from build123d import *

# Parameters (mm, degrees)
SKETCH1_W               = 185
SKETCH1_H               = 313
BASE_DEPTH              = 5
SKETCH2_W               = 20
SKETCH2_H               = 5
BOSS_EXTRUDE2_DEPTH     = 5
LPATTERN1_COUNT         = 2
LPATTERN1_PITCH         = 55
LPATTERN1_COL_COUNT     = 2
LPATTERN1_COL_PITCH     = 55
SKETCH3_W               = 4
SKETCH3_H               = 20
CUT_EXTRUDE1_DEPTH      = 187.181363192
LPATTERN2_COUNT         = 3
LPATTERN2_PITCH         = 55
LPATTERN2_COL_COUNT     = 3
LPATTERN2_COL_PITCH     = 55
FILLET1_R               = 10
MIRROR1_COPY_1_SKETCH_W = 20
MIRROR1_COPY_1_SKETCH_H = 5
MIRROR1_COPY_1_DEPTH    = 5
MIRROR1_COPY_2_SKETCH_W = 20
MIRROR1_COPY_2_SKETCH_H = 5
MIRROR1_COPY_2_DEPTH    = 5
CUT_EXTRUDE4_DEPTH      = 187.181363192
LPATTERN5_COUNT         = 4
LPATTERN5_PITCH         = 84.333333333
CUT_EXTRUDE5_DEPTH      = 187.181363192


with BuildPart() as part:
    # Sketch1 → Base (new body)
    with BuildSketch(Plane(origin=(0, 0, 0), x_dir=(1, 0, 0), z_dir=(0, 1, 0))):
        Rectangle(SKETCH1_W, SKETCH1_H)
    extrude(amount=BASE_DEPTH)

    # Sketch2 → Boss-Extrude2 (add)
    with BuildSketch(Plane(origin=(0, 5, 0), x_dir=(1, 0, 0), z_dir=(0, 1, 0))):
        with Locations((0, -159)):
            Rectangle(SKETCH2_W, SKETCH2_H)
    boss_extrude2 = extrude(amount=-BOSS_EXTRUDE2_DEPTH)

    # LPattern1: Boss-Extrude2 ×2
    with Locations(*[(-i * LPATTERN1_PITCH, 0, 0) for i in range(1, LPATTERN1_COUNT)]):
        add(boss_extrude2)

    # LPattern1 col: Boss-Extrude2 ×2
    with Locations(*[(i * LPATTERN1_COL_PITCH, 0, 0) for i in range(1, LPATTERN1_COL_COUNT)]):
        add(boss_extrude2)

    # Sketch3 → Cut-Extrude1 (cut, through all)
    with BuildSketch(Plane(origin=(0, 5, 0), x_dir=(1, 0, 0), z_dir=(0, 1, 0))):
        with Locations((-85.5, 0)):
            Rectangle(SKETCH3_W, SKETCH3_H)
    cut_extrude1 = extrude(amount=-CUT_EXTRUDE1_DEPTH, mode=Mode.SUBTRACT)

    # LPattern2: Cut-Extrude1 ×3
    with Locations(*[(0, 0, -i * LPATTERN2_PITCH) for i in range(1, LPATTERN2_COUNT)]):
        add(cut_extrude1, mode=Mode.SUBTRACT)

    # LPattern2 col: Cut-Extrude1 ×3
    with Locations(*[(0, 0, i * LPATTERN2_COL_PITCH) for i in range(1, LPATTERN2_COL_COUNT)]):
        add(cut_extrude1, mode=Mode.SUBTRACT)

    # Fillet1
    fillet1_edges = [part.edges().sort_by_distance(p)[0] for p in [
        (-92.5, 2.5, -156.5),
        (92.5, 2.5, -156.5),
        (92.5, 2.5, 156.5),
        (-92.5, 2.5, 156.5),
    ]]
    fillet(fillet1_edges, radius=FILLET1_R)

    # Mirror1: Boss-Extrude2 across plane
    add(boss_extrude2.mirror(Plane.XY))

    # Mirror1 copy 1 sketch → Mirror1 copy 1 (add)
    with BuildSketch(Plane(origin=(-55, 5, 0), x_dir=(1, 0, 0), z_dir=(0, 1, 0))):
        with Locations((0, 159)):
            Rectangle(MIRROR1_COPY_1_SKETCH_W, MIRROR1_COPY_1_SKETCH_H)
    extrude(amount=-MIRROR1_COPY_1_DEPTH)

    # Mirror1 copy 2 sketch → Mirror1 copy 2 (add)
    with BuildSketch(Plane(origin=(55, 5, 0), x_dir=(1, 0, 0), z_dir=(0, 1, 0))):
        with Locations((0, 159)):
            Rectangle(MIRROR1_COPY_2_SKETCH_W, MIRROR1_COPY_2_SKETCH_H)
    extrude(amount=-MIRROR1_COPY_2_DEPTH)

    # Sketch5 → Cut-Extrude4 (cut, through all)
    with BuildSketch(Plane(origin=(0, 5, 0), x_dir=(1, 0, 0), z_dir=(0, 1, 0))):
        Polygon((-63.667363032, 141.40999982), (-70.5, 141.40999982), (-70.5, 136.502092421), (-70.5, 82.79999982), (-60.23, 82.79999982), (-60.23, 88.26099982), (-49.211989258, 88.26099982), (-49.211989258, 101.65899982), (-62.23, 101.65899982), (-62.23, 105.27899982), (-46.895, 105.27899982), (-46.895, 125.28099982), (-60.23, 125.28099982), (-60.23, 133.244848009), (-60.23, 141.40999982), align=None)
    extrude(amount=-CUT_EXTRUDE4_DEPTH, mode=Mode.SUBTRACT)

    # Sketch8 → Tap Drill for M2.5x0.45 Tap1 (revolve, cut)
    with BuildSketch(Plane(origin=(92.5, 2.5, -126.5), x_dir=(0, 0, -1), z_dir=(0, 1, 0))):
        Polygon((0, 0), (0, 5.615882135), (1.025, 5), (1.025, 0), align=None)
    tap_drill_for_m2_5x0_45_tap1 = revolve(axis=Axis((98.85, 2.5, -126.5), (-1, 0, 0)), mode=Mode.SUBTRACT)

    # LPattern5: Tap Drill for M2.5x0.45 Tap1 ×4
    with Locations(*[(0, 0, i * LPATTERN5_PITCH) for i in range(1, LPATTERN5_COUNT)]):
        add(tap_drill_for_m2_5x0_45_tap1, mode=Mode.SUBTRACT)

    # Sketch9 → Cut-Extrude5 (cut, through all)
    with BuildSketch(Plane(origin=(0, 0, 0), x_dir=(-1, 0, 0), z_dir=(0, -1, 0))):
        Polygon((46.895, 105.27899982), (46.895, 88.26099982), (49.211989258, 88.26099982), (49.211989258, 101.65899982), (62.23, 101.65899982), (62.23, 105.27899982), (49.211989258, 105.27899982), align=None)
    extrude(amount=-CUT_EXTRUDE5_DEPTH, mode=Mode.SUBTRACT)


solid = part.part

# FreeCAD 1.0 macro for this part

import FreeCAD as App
import Part
import Sketcher
from FreeCAD import Vector
Q = App.Units.Quantity


def edges_at(feature, points):
    """Names of the edges that pass closest to the given points."""
    edges = feature.Shape.Edges
    near = lambda p: min(range(len(edges)), key=lambda i: edges[i].distToShape(Part.Vertex(*p))[0])
    return sorted({f"Edge{near(p) + 1}" for p in points})


def add_polygon(sketch, points):
    """Adds a closed chain of lines whose ends are joined by coincident constraints."""
    first, n = sketch.GeometryCount, len(points)
    for a, b in zip(points, points[1:] + points[:1]):
        sketch.addGeometry(Part.LineSegment(App.Vector(*a, 0), App.Vector(*b, 0)), False)
    for i in range(n):
        sketch.addConstraint(Sketcher.Constraint("Coincident", first + i, 2, first + (i + 1) % n, 1))

doc = App.newDocument("Part")
body = doc.addObject("PartDesign::Body", "Body")

# Sketch on XZ plane
sketch1 = doc.addObject("Sketcher::SketchObject", "Sketch")
body.addObject(sketch1)
sketch1.AttachmentSupport = (doc.XZ_Plane, [""])
sketch1.MapMode = "FlatFace"
add_polygon(sketch1, [(-92, -156), (-92, 156), (92, 156), (92, -156)])  # lines 0-3
sketch1.addConstraint(Sketcher.Constraint("Vertical", 0))
sketch1.addConstraint(Sketcher.Constraint("Horizontal", 1))
sketch1.addConstraint(Sketcher.Constraint("Vertical", 2))
sketch1.addConstraint(Sketcher.Constraint("Horizontal", 3))
sketch1.addConstraint(Sketcher.Constraint("Symmetric", 0, 2, 2, 2, -1, 1))
sketch1.addConstraint(Sketcher.Constraint("DistanceX", 1, 1, 1, 2, 185.0))
sketch1.addConstraint(Sketcher.Constraint("DistanceY", 0, 1, 0, 2, 313.0))
pad1 = doc.addObject("PartDesign::Pad", "Pad")
body.addObject(pad1)
pad1.Profile = sketch1
pad1.Length = 5
pad1.Reversed = True

# Sketch on XZ plane
sketch2 = doc.addObject("Sketcher::SketchObject", "Sketch001")
body.addObject(sketch2)
sketch2.AttachmentSupport = (doc.XZ_Plane, [""])
sketch2.MapMode = "FlatFace"
sketch2.AttachmentOffset = App.Placement(Vector(0, 0, -5), App.Rotation())
add_polygon(sketch2, [(-10, 156), (-10, 162), (10, 162), (10, 156)])  # lines 0-3
sketch2.addConstraint(Sketcher.Constraint("Vertical", 0))
sketch2.addConstraint(Sketcher.Constraint("Horizontal", 1))
sketch2.addConstraint(Sketcher.Constraint("Vertical", 2))
sketch2.addConstraint(Sketcher.Constraint("Horizontal", 3))
sketch2.addConstraint(Sketcher.Constraint("DistanceX", 1, 1, 1, 2, 20.0))
sketch2.addConstraint(Sketcher.Constraint("DistanceY", 0, 1, 0, 2, 5.0))
sketch2.addConstraint(Sketcher.Constraint("DistanceX", 0, 2, -1, 1, 10.0))
sketch2.addConstraint(Sketcher.Constraint("DistanceY", -1, 1, 0, 2, 161.5))
pad2 = doc.addObject("PartDesign::Pad", "Pad001")
body.addObject(pad2)
pad2.Profile = sketch2
pad2.Length = 5
doc.recompute()

linearpattern = doc.addObject("PartDesign::LinearPattern", "LinearPattern")
body.addObject(linearpattern)
linearpattern.Originals = [pad2]
linearpattern.Direction = (doc.X_Axis, [""])
linearpattern.Mode = "offset"
linearpattern.Offset = 55
linearpattern.Occurrences = 2
linearpattern.Reversed = True
body.Tip = linearpattern
doc.recompute()

linearpattern2 = doc.addObject("PartDesign::LinearPattern", "LinearPattern001")
body.addObject(linearpattern2)
linearpattern2.Originals = [pad2]
linearpattern2.Direction = (doc.X_Axis, [""])
linearpattern2.Mode = "offset"
linearpattern2.Offset = 55
linearpattern2.Occurrences = 2
body.Tip = linearpattern2

# Sketch on XZ plane
sketch3 = doc.addObject("Sketcher::SketchObject", "Sketch002")
body.addObject(sketch3)
sketch3.AttachmentSupport = (doc.XZ_Plane, [""])
sketch3.MapMode = "FlatFace"
sketch3.AttachmentOffset = App.Placement(Vector(0, 0, -5), App.Rotation())
add_polygon(sketch3, [(-87.5, -10), (-87.5, 10), (-83.5, 10), (-83.5, -10)])  # lines 0-3
sketch3.addConstraint(Sketcher.Constraint("Vertical", 0))
sketch3.addConstraint(Sketcher.Constraint("Horizontal", 1))
sketch3.addConstraint(Sketcher.Constraint("Vertical", 2))
sketch3.addConstraint(Sketcher.Constraint("Horizontal", 3))
sketch3.addConstraint(Sketcher.Constraint("DistanceX", 1, 1, 1, 2, 4.0))
sketch3.addConstraint(Sketcher.Constraint("DistanceY", 0, 1, 0, 2, 20.0))
sketch3.addConstraint(Sketcher.Constraint("DistanceY", -1, 1, 0, 2, 10.0))
sketch3.addConstraint(Sketcher.Constraint("DistanceX", 0, 2, -1, 1, 87.5))
pocket1 = doc.addObject("PartDesign::Pocket", "Pocket")
body.addObject(pocket1)
pocket1.Profile = sketch3
pocket1.Type = "ThroughAll"
pocket1.Reversed = True
doc.recompute()

linearpattern3 = doc.addObject("PartDesign::LinearPattern", "LinearPattern002")
body.addObject(linearpattern3)
linearpattern3.Originals = [pocket1]
linearpattern3.Direction = (doc.Z_Axis, [""])
linearpattern3.Mode = "offset"
linearpattern3.Offset = 55
linearpattern3.Occurrences = 3
linearpattern3.Reversed = True
body.Tip = linearpattern3
doc.recompute()

linearpattern4 = doc.addObject("PartDesign::LinearPattern", "LinearPattern003")
body.addObject(linearpattern4)
linearpattern4.Originals = [pocket1]
linearpattern4.Direction = (doc.Z_Axis, [""])
linearpattern4.Mode = "offset"
linearpattern4.Offset = 55
linearpattern4.Occurrences = 3
body.Tip = linearpattern4
doc.recompute()

fillet = doc.addObject("PartDesign::Fillet", "Fillet")
body.addObject(fillet)
fillet.Base = (linearpattern4, edges_at(linearpattern4, [
    (-92.5, 2.5, -156.5),
    (92.5, 2.5, -156.5),
    (92.5, 2.5, 156.5),
    (-92.5, 2.5, 156.5),
]))
fillet.Radius = 10
doc.recompute()

mirrored = doc.addObject("PartDesign::Mirrored", "Mirrored")
body.addObject(mirrored)
mirrored.Originals = [pad2]
mirrored.MirrorPlane = (doc.XY_Plane, [""])
body.Tip = mirrored

# Sketch on XZ plane
sketch4 = doc.addObject("Sketcher::SketchObject", "Sketch003")
body.addObject(sketch4)
sketch4.AttachmentSupport = (doc.XZ_Plane, [""])
sketch4.MapMode = "FlatFace"
sketch4.AttachmentOffset = App.Placement(Vector(0, 0, -5), App.Rotation())
add_polygon(sketch4, [(-65, -162), (-65, -156), (-45, -156), (-45, -162)])  # lines 0-3
sketch4.addConstraint(Sketcher.Constraint("Vertical", 0))
sketch4.addConstraint(Sketcher.Constraint("Horizontal", 1))
sketch4.addConstraint(Sketcher.Constraint("Vertical", 2))
sketch4.addConstraint(Sketcher.Constraint("Horizontal", 3))
sketch4.addConstraint(Sketcher.Constraint("DistanceX", 1, 1, 1, 2, 20.0))
sketch4.addConstraint(Sketcher.Constraint("DistanceY", 0, 1, 0, 2, 5.0))
sketch4.addConstraint(Sketcher.Constraint("DistanceX", 0, 2, -1, 1, 65.0))
sketch4.addConstraint(Sketcher.Constraint("DistanceY", 0, 2, -1, 1, 156.5))
pad3 = doc.addObject("PartDesign::Pad", "Pad002")
body.addObject(pad3)
pad3.Profile = sketch4
pad3.Length = 5

# Sketch on XZ plane
sketch5 = doc.addObject("Sketcher::SketchObject", "Sketch004")
body.addObject(sketch5)
sketch5.AttachmentSupport = (doc.XZ_Plane, [""])
sketch5.MapMode = "FlatFace"
sketch5.AttachmentOffset = App.Placement(Vector(0, 0, -5), App.Rotation())
add_polygon(sketch5, [(45, -162), (45, -156), (65, -156), (65, -162)])  # lines 0-3
sketch5.addConstraint(Sketcher.Constraint("Vertical", 0))
sketch5.addConstraint(Sketcher.Constraint("Horizontal", 1))
sketch5.addConstraint(Sketcher.Constraint("Vertical", 2))
sketch5.addConstraint(Sketcher.Constraint("Horizontal", 3))
sketch5.addConstraint(Sketcher.Constraint("DistanceX", 1, 1, 1, 2, 20.0))
sketch5.addConstraint(Sketcher.Constraint("DistanceY", 0, 1, 0, 2, 5.0))
sketch5.addConstraint(Sketcher.Constraint("DistanceX", -1, 1, 0, 2, 45.0))
sketch5.addConstraint(Sketcher.Constraint("DistanceY", 0, 2, -1, 1, 156.5))
pad4 = doc.addObject("PartDesign::Pad", "Pad003")
body.addObject(pad4)
pad4.Profile = sketch5
pad4.Length = 5

# Sketch on XZ plane
sketch6 = doc.addObject("Sketcher::SketchObject", "Sketch005")
body.addObject(sketch6)
sketch6.AttachmentSupport = (doc.XZ_Plane, [""])
sketch6.MapMode = "FlatFace"
sketch6.AttachmentOffset = App.Placement(Vector(0, 0, -5), App.Rotation())
add_polygon(sketch6, [(-70.5, -141.4), (-70.5, -82.8), (-60.2, -82.8), (-60.2, -88.3), (-49.2, -88.3), (-49.2, -101.7), (-62.2, -101.7), (-62.2, -105.3), (-46.9, -105.3), (-46.9, -125.3), (-60.2, -125.3), (-60.2, -141.4)])  # lines 0-11
sketch6.addConstraint(Sketcher.Constraint("Vertical", 0))
sketch6.addConstraint(Sketcher.Constraint("Horizontal", 1))
sketch6.addConstraint(Sketcher.Constraint("Vertical", 2))
sketch6.addConstraint(Sketcher.Constraint("Horizontal", 3))
sketch6.addConstraint(Sketcher.Constraint("Vertical", 4))
sketch6.addConstraint(Sketcher.Constraint("Horizontal", 5))
sketch6.addConstraint(Sketcher.Constraint("Vertical", 6))
sketch6.addConstraint(Sketcher.Constraint("Horizontal", 7))
sketch6.addConstraint(Sketcher.Constraint("Vertical", 8))
sketch6.addConstraint(Sketcher.Constraint("Horizontal", 9))
sketch6.addConstraint(Sketcher.Constraint("Vertical", 10))
sketch6.addConstraint(Sketcher.Constraint("Horizontal", 11))
sketch6.addConstraint(Sketcher.Constraint("Vertical", 2, 2, 9, 2))
sketch6.addConstraint(Sketcher.Constraint("DistanceX", 5, 2, 2, 2, 2.0))
sketch6.addConstraint(Sketcher.Constraint("DistanceX", 1, 1, 1, 2, 10.27))
sketch6.addConstraint(Sketcher.Constraint("DistanceY", 0, 1, 0, 2, 58.61))
sketch6.addConstraint(Sketcher.Constraint("DistanceY", 6, 2, 6, 1, 3.62))
sketch6.addConstraint(Sketcher.Constraint("DistanceX", 0, 2, -1, 1, 70.5))
sketch6.addConstraint(Sketcher.Constraint("DistanceY", 0, 2, -1, 1, 82.8))
sketch6.addConstraint(Sketcher.Constraint("DistanceX", 7, 1, 7, 2, 15.335))
sketch6.addConstraint(Sketcher.Constraint("DistanceY", 2, 2, 2, 1, 5.461))
sketch6.addConstraint(Sketcher.Constraint("DistanceY", 4, 2, 4, 1, 13.398))
sketch6.addConstraint(Sketcher.Constraint("DistanceY", 8, 2, 8, 1, 20.002))
sketch6.addConstraint(Sketcher.Constraint("DistanceX", 3, 1, 3, 2, 11.018011))
pocket2 = doc.addObject("PartDesign::Pocket", "Pocket001")
body.addObject(pocket2)
pocket2.Profile = sketch6
pocket2.Type = "ThroughAll"
pocket2.Reversed = True

# Sketch on XZ plane
sketch7 = doc.addObject("Sketcher::SketchObject", "Sketch006")
body.addObject(sketch7)
sketch7.AttachmentSupport = (doc.XZ_Plane, [""])
sketch7.MapMode = "FlatFace"
sketch7.AttachmentOffset = App.Placement(Vector(0, 0, -2.5), App.Rotation())
add_polygon(sketch7, [(86.9, -126.5), (92.5, -126.5), (92.5, -127.5), (87.5, -127.5)])  # lines 0-3
sketch7.addGeometry(Part.LineSegment(Vector(92.5, -126.5, 0), Vector(86.9, -126.5, 0)), True)  # axis
sketch7.addConstraint(Sketcher.Constraint("Horizontal", 0))
sketch7.addConstraint(Sketcher.Constraint("Vertical", 1))
sketch7.addConstraint(Sketcher.Constraint("Horizontal", 2))
sketch7.addConstraint(Sketcher.Constraint("Horizontal", 4))
sketch7.addConstraint(Sketcher.Constraint("Coincident", 4, 1, 0, 2))
sketch7.addConstraint(Sketcher.Constraint("Equal", 0, 4))
sketch7.addConstraint(Sketcher.Constraint("DistanceX", 2, 2, 2, 1, 5.0))
sketch7.addConstraint(Sketcher.Constraint("Angle", 3, Q("121 deg")))
sketch7.addConstraint(Sketcher.Constraint("DistanceX", -1, 1, 0, 2, 92.5))
sketch7.addConstraint(Sketcher.Constraint("DistanceY", 0, 2, -1, 1, 126.5))
sketch7.addConstraint(Sketcher.Constraint("DistanceY", 1, 2, 1, 1, 1.025))
groove = doc.addObject("PartDesign::Groove", "Groove")
body.addObject(groove)
groove.Profile = sketch7
groove.ReferenceAxis = (sketch7, ["Axis0"])
groove.Angle = 360
doc.recompute()

linearpattern5 = doc.addObject("PartDesign::LinearPattern", "LinearPattern004")
body.addObject(linearpattern5)
linearpattern5.Originals = [groove]
linearpattern5.Direction = (doc.Z_Axis, [""])
linearpattern5.Mode = "offset"
linearpattern5.Offset = 84.333333
linearpattern5.Occurrences = 4
body.Tip = linearpattern5

# Sketch on XZ plane
sketch8 = doc.addObject("Sketcher::SketchObject", "Sketch007")
body.addObject(sketch8)
sketch8.AttachmentSupport = (doc.XZ_Plane, [""])
sketch8.MapMode = "FlatFace"
add_polygon(sketch8, [(-46.9, -105.3), (-46.9, -88.3), (-49.2, -88.3), (-49.2, -101.7), (-62.2, -101.7), (-62.2, -105.3)])  # lines 0-5
sketch8.addConstraint(Sketcher.Constraint("Vertical", 0))
sketch8.addConstraint(Sketcher.Constraint("Horizontal", 1))
sketch8.addConstraint(Sketcher.Constraint("Vertical", 2))
sketch8.addConstraint(Sketcher.Constraint("Horizontal", 3))
sketch8.addConstraint(Sketcher.Constraint("Vertical", 4))
sketch8.addConstraint(Sketcher.Constraint("Horizontal", 5))
sketch8.addConstraint(Sketcher.Constraint("DistanceY", 4, 2, 4, 1, 3.62))
sketch8.addConstraint(Sketcher.Constraint("DistanceX", 5, 1, 5, 2, 15.335))
sketch8.addConstraint(Sketcher.Constraint("DistanceY", 0, 1, 0, 2, 17.018))
sketch8.addConstraint(Sketcher.Constraint("DistanceX", 3, 2, -1, 1, 62.23))
sketch8.addConstraint(Sketcher.Constraint("DistanceY", 0, 2, -1, 1, 88.261))
sketch8.addConstraint(Sketcher.Constraint("DistanceX", 1, 2, 1, 1, 2.316989))
pocket3 = doc.addObject("PartDesign::Pocket", "Pocket002")
body.addObject(pocket3)
pocket3.Profile = sketch8
pocket3.Type = "ThroughAll"

doc.recompute()
